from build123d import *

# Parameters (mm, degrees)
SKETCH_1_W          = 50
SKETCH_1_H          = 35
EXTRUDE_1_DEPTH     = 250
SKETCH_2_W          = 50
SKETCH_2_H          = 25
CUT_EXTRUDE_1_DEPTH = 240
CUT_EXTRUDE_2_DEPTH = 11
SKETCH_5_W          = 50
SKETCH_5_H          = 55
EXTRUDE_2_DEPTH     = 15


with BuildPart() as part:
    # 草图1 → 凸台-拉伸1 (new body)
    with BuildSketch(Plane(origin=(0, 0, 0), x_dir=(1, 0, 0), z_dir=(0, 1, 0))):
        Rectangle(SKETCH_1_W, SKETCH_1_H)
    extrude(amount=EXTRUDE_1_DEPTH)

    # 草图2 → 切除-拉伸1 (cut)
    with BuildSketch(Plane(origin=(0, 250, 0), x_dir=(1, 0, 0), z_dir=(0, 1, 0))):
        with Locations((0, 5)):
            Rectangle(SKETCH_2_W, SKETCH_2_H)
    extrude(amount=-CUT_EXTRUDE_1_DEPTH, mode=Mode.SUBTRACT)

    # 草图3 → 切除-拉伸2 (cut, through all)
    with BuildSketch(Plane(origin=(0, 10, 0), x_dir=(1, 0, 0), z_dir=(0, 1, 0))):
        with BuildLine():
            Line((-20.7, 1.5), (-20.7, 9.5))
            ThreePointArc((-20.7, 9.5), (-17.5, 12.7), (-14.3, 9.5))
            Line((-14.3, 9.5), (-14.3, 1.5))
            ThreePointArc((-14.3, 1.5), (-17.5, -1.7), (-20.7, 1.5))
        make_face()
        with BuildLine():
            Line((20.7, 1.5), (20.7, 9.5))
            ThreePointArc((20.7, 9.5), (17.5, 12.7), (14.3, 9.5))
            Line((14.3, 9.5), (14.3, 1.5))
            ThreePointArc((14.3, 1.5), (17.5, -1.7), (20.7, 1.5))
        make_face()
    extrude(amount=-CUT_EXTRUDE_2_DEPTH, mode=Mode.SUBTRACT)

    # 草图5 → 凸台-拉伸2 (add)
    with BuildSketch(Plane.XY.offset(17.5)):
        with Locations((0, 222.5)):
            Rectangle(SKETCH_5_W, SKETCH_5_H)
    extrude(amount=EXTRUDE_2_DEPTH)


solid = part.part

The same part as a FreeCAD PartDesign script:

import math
import FreeCAD as App
import Part
import Sketcher
from FreeCAD import Vector
Q = App.Units.Quantity


def add_polygon(sketch, points):
    """Adds a closed chain of lines whose ends are joined by coincident constraints."""
    first, n = sketch.GeometryCount, len(points)
    for a, b in zip(points, points[1:] + points[:1]):
        sketch.addGeometry(Part.LineSegment(App.Vector(*a, 0), App.Vector(*b, 0)), False)
    for i in range(n):
        sketch.addConstraint(Sketcher.Constraint("Coincident", first + i, 2, first + (i + 1) % n, 1))

doc = App.newDocument("Part")
body = doc.addObject("PartDesign::Body", "Body")

sketch1 = doc.addObject("Sketcher::SketchObject", "Sketch")
body.addObject(sketch1)
sketch1.AttachmentSupport = (doc.XZ_Plane, [""])
sketch1.MapMode = "FlatFace"
add_polygon(sketch1, [(-25, -18), (-25, 18), (25, 18), (25, -18)])
sketch1.addConstraint(Sketcher.Constraint("Vertical", 0))
sketch1.addConstraint(Sketcher.Constraint("Horizontal", 1))
sketch1.addConstraint(Sketcher.Constraint("Vertical", 2))
sketch1.addConstraint(Sketcher.Constraint("Horizontal", 3))
sketch1.addConstraint(Sketcher.Constraint("Symmetric", 0, 2, 2, 2, -1, 1))
sketch1.addConstraint(Sketcher.Constraint("DistanceX", 1, 1, 1, 2, Q("50 mm")))
sketch1.addConstraint(Sketcher.Constraint("DistanceY", 0, 1, 0, 2, Q("35 mm")))
pad1 = doc.addObject("PartDesign::Pad", "Pad")
body.addObject(pad1)
pad1.Profile = sketch1
pad1.Length = 250
pad1.Reversed = True

sketch2 = doc.addObject("Sketcher::SketchObject", "Sketch001")
body.addObject(sketch2)
sketch2.AttachmentSupport = (doc.XZ_Plane, [""])
sketch2.MapMode = "FlatFace"
sketch2.AttachmentOffset = App.Placement(Vector(0, 0, -250), App.Rotation())
add_polygon(sketch2, [(-25, -18), (-25, 8), (25, 8), (25, -18)])
sketch2.addConstraint(Sketcher.Constraint("Vertical", 0))
sketch2.addConstraint(Sketcher.Constraint("Horizontal", 1))
sketch2.addConstraint(Sketcher.Constraint("Vertical", 2))
sketch2.addConstraint(Sketcher.Constraint("Horizontal", 3))
sketch2.addConstraint(Sketcher.Constraint("DistanceX", 1, 1, 1, 2, Q("50 mm")))
sketch2.addConstraint(Sketcher.Constraint("DistanceY", 0, 1, 0, 2, Q("25 mm")))
sketch2.addConstraint(Sketcher.Constraint("DistanceX", 0, 2, -1, 1, Q("25 mm")))
sketch2.addConstraint(Sketcher.Constraint("DistanceY", -1, 1, 0, 2, Q("7.5 mm")))
pocket1 = doc.addObject("PartDesign::Pocket", "Pocket")
body.addObject(pocket1)
pocket1.Profile = sketch2
pocket1.Length = 240
pocket1.Reversed = True

sketch3 = doc.addObject("Sketcher::SketchObject", "Sketch002")
body.addObject(sketch3)
sketch3.AttachmentSupport = (doc.XZ_Plane, [""])
sketch3.MapMode = "FlatFace"
sketch3.AttachmentOffset = App.Placement(Vector(0, 0, -10), App.Rotation())
sketch3.addGeometry(Part.LineSegment(Vector(-20.7, -9.5, 0), Vector(-20.7, -1.5, 0)), False)
sketch3.addGeometry(Part.ArcOfCircle(Part.Circle(Vector(-17.5, -1.5, 0), Vector(0, 0, 1), 3.2), math.radians(0), math.radians(180)), False)
sketch3.addGeometry(Part.LineSegment(Vector(-14.3, -1.5, 0), Vector(-14.3, -9.5, 0)), False)
sketch3.addGeometry(Part.ArcOfCircle(Part.Circle(Vector(-17.5, -9.5, 0), Vector(0, 0, 1), 3.2), math.radians(180), math.radians(360)), False)
sketch3.addGeometry(Part.LineSegment(Vector(20.7, -1.5, 0), Vector(20.7, -9.5, 0)), False)
sketch3.addGeometry(Part.ArcOfCircle(Part.Circle(Vector(17.5, -9.5, 0), Vector(0, 0, 1), 3.2), math.radians(180), math.radians(360)), False)
sketch3.addGeometry(Part.LineSegment(Vector(14.3, -9.5, 0), Vector(14.3, -1.5, 0)), False)
sketch3.addGeometry(Part.ArcOfCircle(Part.Circle(Vector(17.5, -1.5, 0), Vector(0, 0, 1), 3.2), math.radians(0), math.radians(180)), False)
sketch3.addConstraint(Sketcher.Constraint("Tangent", 0, 2, 1, 2))
sketch3.addConstraint(Sketcher.Constraint("Tangent", 1, 1, 2, 1))
sketch3.addConstraint(Sketcher.Constraint("Tangent", 2, 2, 3, 2))
sketch3.addConstraint(Sketcher.Constraint("Tangent", 3, 1, 0, 1))
sketch3.addConstraint(Sketcher.Constraint("Tangent", 4, 2, 5, 2))
sketch3.addConstraint(Sketcher.Constraint("Tangent", 5, 1, 6, 1))
sketch3.addConstraint(Sketcher.Constraint("Tangent", 6, 2, 7, 2))
sketch3.addConstraint(Sketcher.Constraint("Tangent", 7, 1, 4, 1))
sketch3.addConstraint(Sketcher.Constraint("Vertical", 0))
sketch3.addConstraint(Sketcher.Constraint("Vertical", 2))
sketch3.addConstraint(Sketcher.Constraint("Vertical", 4))
sketch3.addConstraint(Sketcher.Constraint("Vertical", 6))
sketch3.addConstraint(Sketcher.Constraint("Equal", 3, 5))
sketch3.addConstraint(Sketcher.Constraint("Symmetric", 3, 3, 5, 3, -2))
sketch3.addConstraint(Sketcher.Constraint("Horizontal", 1, 3, 7, 3))
sketch3.addConstraint(Sketcher.Constraint("Radius", 1, Q("3.2 mm")))
sketch3.addConstraint(Sketcher.Constraint("DistanceY", 0, 1, 0, 2, Q("8 mm")))
sketch3.addConstraint(Sketcher.Constraint("DistanceX", 3, 3, 5, 3, Q("35 mm")))
sketch3.addConstraint(Sketcher.Constraint("DistanceY", 1, 3, -1, 1, Q("1.5 mm")))
pocket2 = doc.addObject("PartDesign::Pocket", "Pocket001")
body.addObject(pocket2)
pocket2.Profile = sketch3
pocket2.Type = "ThroughAll"
pocket2.Reversed = True

sketch4 = doc.addObject("Sketcher::SketchObject", "Sketch003")
body.addObject(sketch4)
sketch4.AttachmentSupport = (doc.XY_Plane, [""])
sketch4.MapMode = "FlatFace"
sketch4.AttachmentOffset = App.Placement(Vector(0, 0, 17.5), App.Rotation())
add_polygon(sketch4, [(-25, 250), (-25, 195), (25, 195), (25, 250)])
sketch4.addConstraint(Sketcher.Constraint("Vertical", 0))
sketch4.addConstraint(Sketcher.Constraint("Horizontal", 1))
sketch4.addConstraint(Sketcher.Constraint("Vertical", 2))
sketch4.addConstraint(Sketcher.Constraint("Horizontal", 3))
sketch4.addConstraint(Sketcher.Constraint("DistanceX", 1, 1, 1, 2, Q("50 mm")))
sketch4.addConstraint(Sketcher.Constraint("DistanceY", 0, 2, 0, 1, Q("55 mm")))
sketch4.addConstraint(Sketcher.Constraint("DistanceX", 0, 2, -1, 1, Q("25 mm")))
sketch4.addConstraint(Sketcher.Constraint("DistanceY", -1, 1, 0, 2, Q("195 mm")))
pad2 = doc.addObject("PartDesign::Pad", "Pad001")
body.addObject(pad2)
pad2.Profile = sketch4
pad2.Length = 15

doc.recompute()
